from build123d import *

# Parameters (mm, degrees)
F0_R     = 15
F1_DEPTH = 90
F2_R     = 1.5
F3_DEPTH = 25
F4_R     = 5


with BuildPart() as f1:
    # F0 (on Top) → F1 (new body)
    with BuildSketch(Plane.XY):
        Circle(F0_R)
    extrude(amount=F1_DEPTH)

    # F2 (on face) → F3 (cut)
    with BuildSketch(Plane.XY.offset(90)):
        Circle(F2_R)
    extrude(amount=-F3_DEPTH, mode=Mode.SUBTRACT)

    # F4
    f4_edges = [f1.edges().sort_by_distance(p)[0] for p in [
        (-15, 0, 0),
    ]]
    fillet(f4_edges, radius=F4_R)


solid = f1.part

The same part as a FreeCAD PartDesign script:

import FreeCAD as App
import Part
import Sketcher

V = App.Vector
Q = App.Units.Quantity


def edges_at(feature, points):
    """Names of the edges that pass closest to the given points."""
    edges = feature.Shape.Edges
    near = lambda p: min(range(len(edges)), key=lambda i: edges[i].distToShape(Part.Vertex(*p))[0])
    return sorted({f"Edge{near(p) + 1}" for p in points})

doc = App.newDocument("Part")
body = doc.addObject("PartDesign::Body", "Body")

# Sketch on XY plane
sketch1 = body.newObject("Sketcher::SketchObject", "Sketch")
sketch1.AttachmentSupport = (doc.getObject("XY_Plane"), [""])
sketch1.MapMode = "FlatFace"
sketch1.addGeometry(Part.Circle(V(0, 0, 0), V(0, 0, 1), 15), False)
sketch1.addConstraint(Sketcher.Constraint("Coincident", 0, 3, -1, 1))
sketch1.addConstraint(Sketcher.Constraint("Diameter", 0, Q("30 mm")))
pad1 = body.newObject("PartDesign::Pad", "Pad")
pad1.Profile = sketch1
pad1.Length = 90

# Sketch on XY plane
sketch2 = body.newObject("Sketcher::SketchObject", "Sketch001")
sketch2.AttachmentSupport = (doc.getObject("XY_Plane"), [""])
sketch2.MapMode = "FlatFace"
sketch2.AttachmentOffset = App.Placement(V(0, 0, 90), App.Rotation())
sketch2.addGeometry(Part.Circle(V(0, 0, 0), V(0, 0, 1), 1.5), False)
sketch2.addConstraint(Sketcher.Constraint("Coincident", 0, 3, -1, 1))
sketch2.addConstraint(Sketcher.Constraint("Diameter", 0, Q("3 mm")))
pocket1 = body.newObject("PartDesign::Pocket", "Pocket")
pocket1.Profile = sketch2
pocket1.Length = 25
doc.recompute()

fillet = body.newObject("PartDesign::Fillet", "Fillet")
fillet.Base = (pocket1, edges_at(pocket1, [(-15, 0, 0)]))
fillet.Radius = 5

doc.recompute()
